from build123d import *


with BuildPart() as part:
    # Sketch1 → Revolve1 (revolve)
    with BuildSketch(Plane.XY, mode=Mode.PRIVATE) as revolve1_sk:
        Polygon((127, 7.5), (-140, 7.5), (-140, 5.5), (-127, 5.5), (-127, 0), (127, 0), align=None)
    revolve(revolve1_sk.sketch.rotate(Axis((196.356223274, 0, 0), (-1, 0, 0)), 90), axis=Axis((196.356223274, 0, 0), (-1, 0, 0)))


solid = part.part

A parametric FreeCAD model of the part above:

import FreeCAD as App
import Part
import Sketcher

V = App.Vector
Q = App.Units.Quantity

doc = App.newDocument("Part")
body = doc.addObject("PartDesign::Body", "Body")

# Sketch on XY plane
sketch1 = body.newObject("Sketcher::SketchObject", "Sketch")
sketch1.AttachmentSupport = (doc.getObject("XY_Plane"), [""])
sketch1.MapMode = "FlatFace"
sketch1.addGeometry([
    Part.LineSegment(V(127, 7.5, 0), V(-140, 7.5, 0)),  # 0
    Part.LineSegment(V(-140, 7.5, 0), V(-140, 5.5, 0)),  # 1
    Part.LineSegment(V(-140, 5.5, 0), V(-127, 5.5, 0)),  # 2
    Part.LineSegment(V(-127, 5.5, 0), V(-127, 0, 0)),  # 3
    Part.LineSegment(V(-127, 0, 0), V(127, 0, 0)),  # 4
    Part.LineSegment(V(127, 0, 0), V(127, 7.5, 0)),  # 5
], False)
sketch1.addConstraint([
    Sketcher.Constraint("Coincident", 0, 2, 1, 1),
    Sketcher.Constraint("Coincident", 1, 2, 2, 1),
    Sketcher.Constraint("Coincident", 2, 2, 3, 1),
    Sketcher.Constraint("Coincident", 3, 2, 4, 1),
    Sketcher.Constraint("Coincident", 4, 2, 5, 1),
    Sketcher.Constraint("Coincident", 5, 2, 0, 1),
    Sketcher.Constraint("Horizontal", 0),
    Sketcher.Constraint("Vertical", 1),
    Sketcher.Constraint("Horizontal", 2),
    Sketcher.Constraint("Vertical", 3),
    Sketcher.Constraint("Horizontal", 4),
    Sketcher.Constraint("Vertical", 5),
    Sketcher.Constraint("Symmetric", 3, 2, 4, 2, -1, 1),
    Sketcher.Constraint("DistanceX", 0, 2, 0, 1, Q("267 mm")),
    Sketcher.Constraint("DistanceX", 2, 1, 2, 2, Q("13 mm")),
    Sketcher.Constraint("DistanceY", 1, 2, 1, 1, Q("2 mm")),
    Sketcher.Constraint("DistanceY", 3, 2, 3, 1, Q("5.5 mm")),
])
revolution = body.newObject("PartDesign::Revolution", "Revolution")
revolution.Profile = sketch1
revolution.ReferenceAxis = (sketch1, ["H_Axis"])
revolution.Angle = 360

doc.recompute()
